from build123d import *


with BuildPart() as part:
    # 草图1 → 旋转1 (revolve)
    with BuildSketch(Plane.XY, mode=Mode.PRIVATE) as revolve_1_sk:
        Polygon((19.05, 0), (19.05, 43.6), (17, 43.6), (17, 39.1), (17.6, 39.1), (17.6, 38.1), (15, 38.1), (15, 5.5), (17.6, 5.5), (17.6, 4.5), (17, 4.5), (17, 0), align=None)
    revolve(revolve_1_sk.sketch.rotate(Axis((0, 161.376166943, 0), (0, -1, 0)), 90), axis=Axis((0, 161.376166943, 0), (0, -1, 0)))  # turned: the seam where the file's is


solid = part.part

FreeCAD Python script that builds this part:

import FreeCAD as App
import Part
import Sketcher
from FreeCAD import Vector
Q = App.Units.Quantity

doc = App.newDocument("Part")
body = doc.addObject("PartDesign::Body", "Body")

# Sketch on XY plane
sketch1 = body.newObject("Sketcher::SketchObject", "Sketch")
sketch1.AttachmentSupport = (doc.getObject("XY_Plane"), [""])
sketch1.MapMode = "FlatFace"
sketch1.addGeometry([
    Part.LineSegment(Vector(19.1, 0, 0), Vector(19.1, 43.6, 0)),  # 0
    Part.LineSegment(Vector(19.1, 43.6, 0), Vector(17, 43.6, 0)),  # 1
    Part.LineSegment(Vector(17, 43.6, 0), Vector(17, 39.1, 0)),  # 2
    Part.LineSegment(Vector(17, 39.1, 0), Vector(17.6, 39.1, 0)),  # 3
    Part.LineSegment(Vector(17.6, 39.1, 0), Vector(17.6, 38.1, 0)),  # 4
    Part.LineSegment(Vector(17.6, 38.1, 0), Vector(15, 38.1, 0)),  # 5
    Part.LineSegment(Vector(15, 38.1, 0), Vector(15, 5.5, 0)),  # 6
    Part.LineSegment(Vector(15, 5.5, 0), Vector(17.6, 5.5, 0)),  # 7
    Part.LineSegment(Vector(17.6, 5.5, 0), Vector(17.6, 4.5, 0)),  # 8
    Part.LineSegment(Vector(17.6, 4.5, 0), Vector(17, 4.5, 0)),  # 9
    Part.LineSegment(Vector(17, 4.5, 0), Vector(17, 0, 0)),  # 10
    Part.LineSegment(Vector(17, 0, 0), Vector(19.1, 0, 0)),  # 11
], False)
sketch1.addConstraint([
    Sketcher.Constraint("Coincident", 0, 2, 1, 1),
    Sketcher.Constraint("Coincident", 1, 2, 2, 1),
    Sketcher.Constraint("Coincident", 2, 2, 3, 1),
    Sketcher.Constraint("Coincident", 3, 2, 4, 1),
    Sketcher.Constraint("Coincident", 4, 2, 5, 1),
    Sketcher.Constraint("Coincident", 5, 2, 6, 1),
    Sketcher.Constraint("Coincident", 6, 2, 7, 1),
    Sketcher.Constraint("Coincident", 7, 2, 8, 1),
    Sketcher.Constraint("Coincident", 8, 2, 9, 1),
    Sketcher.Constraint("Coincident", 9, 2, 10, 1),
    Sketcher.Constraint("Coincident", 10, 2, 11, 1),
    Sketcher.Constraint("Coincident", 11, 2, 0, 1),
    Sketcher.Constraint("Vertical", 0),
    Sketcher.Constraint("Horizontal", 1),
    Sketcher.Constraint("Vertical", 2),
    Sketcher.Constraint("Horizontal", 3),
    Sketcher.Constraint("Vertical", 4),
    Sketcher.Constraint("Horizontal", 5),
    Sketcher.Constraint("Vertical", 6),
    Sketcher.Constraint("Horizontal", 7),
    Sketcher.Constraint("Vertical", 8),
    Sketcher.Constraint("Horizontal", 9),
    Sketcher.Constraint("Vertical", 10),
    Sketcher.Constraint("Horizontal", 11),
    Sketcher.Constraint("PointOnObject", 10, 2, -1),
    Sketcher.Constraint("Vertical", 4, 2, 7, 2),
    Sketcher.Constraint("Vertical", 2, 2, 9, 2),
    Sketcher.Constraint("Equal", 4, 8),
    Sketcher.Constraint("Equal", 2, 10),
    Sketcher.Constraint("DistanceY", 4, 2, 4, 1, Q("1 mm")),
    Sketcher.Constraint("DistanceX", 3, 1, 3, 2, Q("0.6 mm")),
    Sketcher.Constraint("DistanceX", 5, 2, 5, 1, Q("2.6 mm")),
    Sketcher.Constraint("DistanceY", 0, 1, 0, 2, Q("43.6 mm")),
    Sketcher.Constraint("DistanceY", 2, 2, 2, 1, Q("4.5 mm")),
    Sketcher.Constraint("DistanceX", -1, 1, 1, 2, Q("17 mm")),
    Sketcher.Constraint("DistanceX", 1, 2, 1, 1, Q("2.05 mm")),
])
revolution = body.newObject("PartDesign::Revolution", "Revolution")
revolution.Profile = sketch1
revolution.ReferenceAxis = (sketch1, ["V_Axis"])
revolution.Angle = 360

doc.recompute()
